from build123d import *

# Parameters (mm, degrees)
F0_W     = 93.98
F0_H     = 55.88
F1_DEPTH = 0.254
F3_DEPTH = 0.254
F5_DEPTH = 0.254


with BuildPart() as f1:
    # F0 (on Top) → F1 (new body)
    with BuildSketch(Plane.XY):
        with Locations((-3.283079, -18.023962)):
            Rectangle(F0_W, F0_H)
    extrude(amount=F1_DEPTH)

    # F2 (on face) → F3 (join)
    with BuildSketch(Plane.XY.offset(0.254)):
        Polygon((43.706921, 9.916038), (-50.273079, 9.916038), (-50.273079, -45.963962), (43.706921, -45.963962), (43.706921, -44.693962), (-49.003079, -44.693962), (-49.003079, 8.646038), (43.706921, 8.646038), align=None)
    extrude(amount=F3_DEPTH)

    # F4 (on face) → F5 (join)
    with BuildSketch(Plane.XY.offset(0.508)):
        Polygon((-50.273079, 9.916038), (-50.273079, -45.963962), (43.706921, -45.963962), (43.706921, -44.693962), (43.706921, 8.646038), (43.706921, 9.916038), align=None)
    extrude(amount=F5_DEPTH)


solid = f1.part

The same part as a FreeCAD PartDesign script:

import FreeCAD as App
import Part
import Sketcher
Q = App.Units.Quantity

doc = App.newDocument("Part")
body = doc.addObject("PartDesign::Body", "Body")

sketch1 = doc.addObject("Sketcher::SketchObject", "Sketch")
body.addObject(sketch1)
sketch1.AttachmentSupport = (doc.XY_Plane, [""])
sketch1.MapMode = "FlatFace"
sketch1.addGeometry([
    Part.LineSegment(App.Vector(-50, 10, 0), App.Vector(-50, -46, 0)),
    Part.LineSegment(App.Vector(-50, -46, 0), App.Vector(44, -46, 0)),
    Part.LineSegment(App.Vector(44, -46, 0), App.Vector(44, 10, 0)),
    Part.LineSegment(App.Vector(44, 10, 0), App.Vector(-50, 10, 0)),
], False)
sketch1.addConstraint([
    Sketcher.Constraint("Coincident", 0, 2, 1, 1),
    Sketcher.Constraint("Coincident", 1, 2, 2, 1),
    Sketcher.Constraint("Coincident", 2, 2, 3, 1),
    Sketcher.Constraint("Coincident", 3, 2, 0, 1),
    Sketcher.Constraint("Vertical", 0),
    Sketcher.Constraint("Horizontal", 1),
    Sketcher.Constraint("Vertical", 2),
    Sketcher.Constraint("Horizontal", 3),
    Sketcher.Constraint("DistanceX", 1, 1, 1, 2, Q("3.7 in")),
    Sketcher.Constraint("DistanceY", 0, 2, 0, 1, Q("2.2 in")),
    Sketcher.Constraint("DistanceX", 0, 2, -1, 1, Q("50.273079 mm")),
    Sketcher.Constraint("DistanceY", 0, 2, -1, 1, Q("45.963962 mm")),
])
pad1 = doc.addObject("PartDesign::Pad", "Pad")
body.addObject(pad1)
pad1.Profile = sketch1
pad1.Length = Q("0.01 in")

sketch2 = doc.addObject("Sketcher::SketchObject", "Sketch001")
body.addObject(sketch2)
sketch2.AttachmentSupport = (doc.XY_Plane, [""])
sketch2.MapMode = "FlatFace"
sketch2.AttachmentOffset = App.Placement(App.Vector(0, 0, 0.01 * 25.4), App.Rotation())
sketch2.addGeometry([
    Part.LineSegment(App.Vector(43.7, 9.9, 0), App.Vector(-50.3, 9.9, 0)),
    Part.LineSegment(App.Vector(-50.3, 9.9, 0), App.Vector(-50.3, -46, 0)),
    Part.LineSegment(App.Vector(-50.3, -46, 0), App.Vector(43.7, -46, 0)),
    Part.LineSegment(App.Vector(43.7, -46, 0), App.Vector(43.7, -44.7, 0)),
    Part.LineSegment(App.Vector(43.7, -44.7, 0), App.Vector(-49, -44.7, 0)),
    Part.LineSegment(App.Vector(-49, -44.7, 0), App.Vector(-49, 8.6, 0)),
    Part.LineSegment(App.Vector(-49, 8.6, 0), App.Vector(43.7, 8.6, 0)),
    Part.LineSegment(App.Vector(43.7, 8.6, 0), App.Vector(43.7, 9.9, 0)),
], False)
sketch2.addConstraint([
    Sketcher.Constraint("Coincident", 0, 2, 1, 1),
    Sketcher.Constraint("Coincident", 1, 2, 2, 1),
    Sketcher.Constraint("Coincident", 2, 2, 3, 1),
    Sketcher.Constraint("Coincident", 3, 2, 4, 1),
    Sketcher.Constraint("Coincident", 4, 2, 5, 1),
    Sketcher.Constraint("Coincident", 5, 2, 6, 1),
    Sketcher.Constraint("Coincident", 6, 2, 7, 1),
    Sketcher.Constraint("Coincident", 7, 2, 0, 1),
    Sketcher.Constraint("Horizontal", 0),
    Sketcher.Constraint("Vertical", 1),
    Sketcher.Constraint("Horizontal", 2),
    Sketcher.Constraint("Vertical", 3),
    Sketcher.Constraint("Horizontal", 4),
    Sketcher.Constraint("Vertical", 5),
    Sketcher.Constraint("Horizontal", 6),
    Sketcher.Constraint("Vertical", 7),
    Sketcher.Constraint("Vertical", 3, 2, 6, 2),
    Sketcher.Constraint("Equal", 3, 7),
    Sketcher.Constraint("DistanceX", 0, 2, 0, 1, Q("3.7 in")),
    Sketcher.Constraint("DistanceY", 1, 2, 1, 1, Q("2.2 in")),
    Sketcher.Constraint("DistanceY", 5, 1, 5, 2, Q("2.1 in")),
    Sketcher.Constraint("DistanceX", 4, 2, 4, 1, Q("3.65 in")),
    Sketcher.Constraint("DistanceX", 0, 2, -1, 1, Q("50.273079 mm")),
    Sketcher.Constraint("DistanceY", -1, 1, 5, 2, Q("8.646038 mm")),
])
pad2 = doc.addObject("PartDesign::Pad", "Pad001")
body.addObject(pad2)
pad2.Profile = sketch2
pad2.Length = Q("0.01 in")

sketch3 = doc.addObject("Sketcher::SketchObject", "Sketch002")
body.addObject(sketch3)
sketch3.AttachmentSupport = (doc.XY_Plane, [""])
sketch3.MapMode = "FlatFace"
sketch3.AttachmentOffset = App.Placement(App.Vector(0, 0, 0.02 * 25.4), App.Rotation())
sketch3.addGeometry([
    Part.LineSegment(App.Vector(-50, 10, 0), App.Vector(-50, -46, 0)),
    Part.LineSegment(App.Vector(-50, -46, 0), App.Vector(44, -46, 0)),
    Part.LineSegment(App.Vector(44, -46, 0), App.Vector(44, 10, 0)),
    Part.LineSegment(App.Vector(44, 10, 0), App.Vector(-50, 10, 0)),
], False)
sketch3.addConstraint([
    Sketcher.Constraint("Coincident", 0, 2, 1, 1),
    Sketcher.Constraint("Coincident", 1, 2, 2, 1),
    Sketcher.Constraint("Coincident", 2, 2, 3, 1),
    Sketcher.Constraint("Coincident", 3, 2, 0, 1),
    Sketcher.Constraint("Vertical", 0),
    Sketcher.Constraint("Horizontal", 1),
    Sketcher.Constraint("Vertical", 2),
    Sketcher.Constraint("Horizontal", 3),
    Sketcher.Constraint("DistanceX", 1, 1, 1, 2, Q("3.7 in")),
    Sketcher.Constraint("DistanceY", 0, 2, 0, 1, Q("2.2 in")),
    Sketcher.Constraint("DistanceX", 0, 2, -1, 1, Q("50.273079 mm")),
    Sketcher.Constraint("DistanceY", 0, 2, -1, 1, Q("45.963962 mm")),
])
pad3 = doc.addObject("PartDesign::Pad", "Pad002")
body.addObject(pad3)
pad3.Profile = sketch3
pad3.Length = Q("0.01 in")

doc.recompute()
